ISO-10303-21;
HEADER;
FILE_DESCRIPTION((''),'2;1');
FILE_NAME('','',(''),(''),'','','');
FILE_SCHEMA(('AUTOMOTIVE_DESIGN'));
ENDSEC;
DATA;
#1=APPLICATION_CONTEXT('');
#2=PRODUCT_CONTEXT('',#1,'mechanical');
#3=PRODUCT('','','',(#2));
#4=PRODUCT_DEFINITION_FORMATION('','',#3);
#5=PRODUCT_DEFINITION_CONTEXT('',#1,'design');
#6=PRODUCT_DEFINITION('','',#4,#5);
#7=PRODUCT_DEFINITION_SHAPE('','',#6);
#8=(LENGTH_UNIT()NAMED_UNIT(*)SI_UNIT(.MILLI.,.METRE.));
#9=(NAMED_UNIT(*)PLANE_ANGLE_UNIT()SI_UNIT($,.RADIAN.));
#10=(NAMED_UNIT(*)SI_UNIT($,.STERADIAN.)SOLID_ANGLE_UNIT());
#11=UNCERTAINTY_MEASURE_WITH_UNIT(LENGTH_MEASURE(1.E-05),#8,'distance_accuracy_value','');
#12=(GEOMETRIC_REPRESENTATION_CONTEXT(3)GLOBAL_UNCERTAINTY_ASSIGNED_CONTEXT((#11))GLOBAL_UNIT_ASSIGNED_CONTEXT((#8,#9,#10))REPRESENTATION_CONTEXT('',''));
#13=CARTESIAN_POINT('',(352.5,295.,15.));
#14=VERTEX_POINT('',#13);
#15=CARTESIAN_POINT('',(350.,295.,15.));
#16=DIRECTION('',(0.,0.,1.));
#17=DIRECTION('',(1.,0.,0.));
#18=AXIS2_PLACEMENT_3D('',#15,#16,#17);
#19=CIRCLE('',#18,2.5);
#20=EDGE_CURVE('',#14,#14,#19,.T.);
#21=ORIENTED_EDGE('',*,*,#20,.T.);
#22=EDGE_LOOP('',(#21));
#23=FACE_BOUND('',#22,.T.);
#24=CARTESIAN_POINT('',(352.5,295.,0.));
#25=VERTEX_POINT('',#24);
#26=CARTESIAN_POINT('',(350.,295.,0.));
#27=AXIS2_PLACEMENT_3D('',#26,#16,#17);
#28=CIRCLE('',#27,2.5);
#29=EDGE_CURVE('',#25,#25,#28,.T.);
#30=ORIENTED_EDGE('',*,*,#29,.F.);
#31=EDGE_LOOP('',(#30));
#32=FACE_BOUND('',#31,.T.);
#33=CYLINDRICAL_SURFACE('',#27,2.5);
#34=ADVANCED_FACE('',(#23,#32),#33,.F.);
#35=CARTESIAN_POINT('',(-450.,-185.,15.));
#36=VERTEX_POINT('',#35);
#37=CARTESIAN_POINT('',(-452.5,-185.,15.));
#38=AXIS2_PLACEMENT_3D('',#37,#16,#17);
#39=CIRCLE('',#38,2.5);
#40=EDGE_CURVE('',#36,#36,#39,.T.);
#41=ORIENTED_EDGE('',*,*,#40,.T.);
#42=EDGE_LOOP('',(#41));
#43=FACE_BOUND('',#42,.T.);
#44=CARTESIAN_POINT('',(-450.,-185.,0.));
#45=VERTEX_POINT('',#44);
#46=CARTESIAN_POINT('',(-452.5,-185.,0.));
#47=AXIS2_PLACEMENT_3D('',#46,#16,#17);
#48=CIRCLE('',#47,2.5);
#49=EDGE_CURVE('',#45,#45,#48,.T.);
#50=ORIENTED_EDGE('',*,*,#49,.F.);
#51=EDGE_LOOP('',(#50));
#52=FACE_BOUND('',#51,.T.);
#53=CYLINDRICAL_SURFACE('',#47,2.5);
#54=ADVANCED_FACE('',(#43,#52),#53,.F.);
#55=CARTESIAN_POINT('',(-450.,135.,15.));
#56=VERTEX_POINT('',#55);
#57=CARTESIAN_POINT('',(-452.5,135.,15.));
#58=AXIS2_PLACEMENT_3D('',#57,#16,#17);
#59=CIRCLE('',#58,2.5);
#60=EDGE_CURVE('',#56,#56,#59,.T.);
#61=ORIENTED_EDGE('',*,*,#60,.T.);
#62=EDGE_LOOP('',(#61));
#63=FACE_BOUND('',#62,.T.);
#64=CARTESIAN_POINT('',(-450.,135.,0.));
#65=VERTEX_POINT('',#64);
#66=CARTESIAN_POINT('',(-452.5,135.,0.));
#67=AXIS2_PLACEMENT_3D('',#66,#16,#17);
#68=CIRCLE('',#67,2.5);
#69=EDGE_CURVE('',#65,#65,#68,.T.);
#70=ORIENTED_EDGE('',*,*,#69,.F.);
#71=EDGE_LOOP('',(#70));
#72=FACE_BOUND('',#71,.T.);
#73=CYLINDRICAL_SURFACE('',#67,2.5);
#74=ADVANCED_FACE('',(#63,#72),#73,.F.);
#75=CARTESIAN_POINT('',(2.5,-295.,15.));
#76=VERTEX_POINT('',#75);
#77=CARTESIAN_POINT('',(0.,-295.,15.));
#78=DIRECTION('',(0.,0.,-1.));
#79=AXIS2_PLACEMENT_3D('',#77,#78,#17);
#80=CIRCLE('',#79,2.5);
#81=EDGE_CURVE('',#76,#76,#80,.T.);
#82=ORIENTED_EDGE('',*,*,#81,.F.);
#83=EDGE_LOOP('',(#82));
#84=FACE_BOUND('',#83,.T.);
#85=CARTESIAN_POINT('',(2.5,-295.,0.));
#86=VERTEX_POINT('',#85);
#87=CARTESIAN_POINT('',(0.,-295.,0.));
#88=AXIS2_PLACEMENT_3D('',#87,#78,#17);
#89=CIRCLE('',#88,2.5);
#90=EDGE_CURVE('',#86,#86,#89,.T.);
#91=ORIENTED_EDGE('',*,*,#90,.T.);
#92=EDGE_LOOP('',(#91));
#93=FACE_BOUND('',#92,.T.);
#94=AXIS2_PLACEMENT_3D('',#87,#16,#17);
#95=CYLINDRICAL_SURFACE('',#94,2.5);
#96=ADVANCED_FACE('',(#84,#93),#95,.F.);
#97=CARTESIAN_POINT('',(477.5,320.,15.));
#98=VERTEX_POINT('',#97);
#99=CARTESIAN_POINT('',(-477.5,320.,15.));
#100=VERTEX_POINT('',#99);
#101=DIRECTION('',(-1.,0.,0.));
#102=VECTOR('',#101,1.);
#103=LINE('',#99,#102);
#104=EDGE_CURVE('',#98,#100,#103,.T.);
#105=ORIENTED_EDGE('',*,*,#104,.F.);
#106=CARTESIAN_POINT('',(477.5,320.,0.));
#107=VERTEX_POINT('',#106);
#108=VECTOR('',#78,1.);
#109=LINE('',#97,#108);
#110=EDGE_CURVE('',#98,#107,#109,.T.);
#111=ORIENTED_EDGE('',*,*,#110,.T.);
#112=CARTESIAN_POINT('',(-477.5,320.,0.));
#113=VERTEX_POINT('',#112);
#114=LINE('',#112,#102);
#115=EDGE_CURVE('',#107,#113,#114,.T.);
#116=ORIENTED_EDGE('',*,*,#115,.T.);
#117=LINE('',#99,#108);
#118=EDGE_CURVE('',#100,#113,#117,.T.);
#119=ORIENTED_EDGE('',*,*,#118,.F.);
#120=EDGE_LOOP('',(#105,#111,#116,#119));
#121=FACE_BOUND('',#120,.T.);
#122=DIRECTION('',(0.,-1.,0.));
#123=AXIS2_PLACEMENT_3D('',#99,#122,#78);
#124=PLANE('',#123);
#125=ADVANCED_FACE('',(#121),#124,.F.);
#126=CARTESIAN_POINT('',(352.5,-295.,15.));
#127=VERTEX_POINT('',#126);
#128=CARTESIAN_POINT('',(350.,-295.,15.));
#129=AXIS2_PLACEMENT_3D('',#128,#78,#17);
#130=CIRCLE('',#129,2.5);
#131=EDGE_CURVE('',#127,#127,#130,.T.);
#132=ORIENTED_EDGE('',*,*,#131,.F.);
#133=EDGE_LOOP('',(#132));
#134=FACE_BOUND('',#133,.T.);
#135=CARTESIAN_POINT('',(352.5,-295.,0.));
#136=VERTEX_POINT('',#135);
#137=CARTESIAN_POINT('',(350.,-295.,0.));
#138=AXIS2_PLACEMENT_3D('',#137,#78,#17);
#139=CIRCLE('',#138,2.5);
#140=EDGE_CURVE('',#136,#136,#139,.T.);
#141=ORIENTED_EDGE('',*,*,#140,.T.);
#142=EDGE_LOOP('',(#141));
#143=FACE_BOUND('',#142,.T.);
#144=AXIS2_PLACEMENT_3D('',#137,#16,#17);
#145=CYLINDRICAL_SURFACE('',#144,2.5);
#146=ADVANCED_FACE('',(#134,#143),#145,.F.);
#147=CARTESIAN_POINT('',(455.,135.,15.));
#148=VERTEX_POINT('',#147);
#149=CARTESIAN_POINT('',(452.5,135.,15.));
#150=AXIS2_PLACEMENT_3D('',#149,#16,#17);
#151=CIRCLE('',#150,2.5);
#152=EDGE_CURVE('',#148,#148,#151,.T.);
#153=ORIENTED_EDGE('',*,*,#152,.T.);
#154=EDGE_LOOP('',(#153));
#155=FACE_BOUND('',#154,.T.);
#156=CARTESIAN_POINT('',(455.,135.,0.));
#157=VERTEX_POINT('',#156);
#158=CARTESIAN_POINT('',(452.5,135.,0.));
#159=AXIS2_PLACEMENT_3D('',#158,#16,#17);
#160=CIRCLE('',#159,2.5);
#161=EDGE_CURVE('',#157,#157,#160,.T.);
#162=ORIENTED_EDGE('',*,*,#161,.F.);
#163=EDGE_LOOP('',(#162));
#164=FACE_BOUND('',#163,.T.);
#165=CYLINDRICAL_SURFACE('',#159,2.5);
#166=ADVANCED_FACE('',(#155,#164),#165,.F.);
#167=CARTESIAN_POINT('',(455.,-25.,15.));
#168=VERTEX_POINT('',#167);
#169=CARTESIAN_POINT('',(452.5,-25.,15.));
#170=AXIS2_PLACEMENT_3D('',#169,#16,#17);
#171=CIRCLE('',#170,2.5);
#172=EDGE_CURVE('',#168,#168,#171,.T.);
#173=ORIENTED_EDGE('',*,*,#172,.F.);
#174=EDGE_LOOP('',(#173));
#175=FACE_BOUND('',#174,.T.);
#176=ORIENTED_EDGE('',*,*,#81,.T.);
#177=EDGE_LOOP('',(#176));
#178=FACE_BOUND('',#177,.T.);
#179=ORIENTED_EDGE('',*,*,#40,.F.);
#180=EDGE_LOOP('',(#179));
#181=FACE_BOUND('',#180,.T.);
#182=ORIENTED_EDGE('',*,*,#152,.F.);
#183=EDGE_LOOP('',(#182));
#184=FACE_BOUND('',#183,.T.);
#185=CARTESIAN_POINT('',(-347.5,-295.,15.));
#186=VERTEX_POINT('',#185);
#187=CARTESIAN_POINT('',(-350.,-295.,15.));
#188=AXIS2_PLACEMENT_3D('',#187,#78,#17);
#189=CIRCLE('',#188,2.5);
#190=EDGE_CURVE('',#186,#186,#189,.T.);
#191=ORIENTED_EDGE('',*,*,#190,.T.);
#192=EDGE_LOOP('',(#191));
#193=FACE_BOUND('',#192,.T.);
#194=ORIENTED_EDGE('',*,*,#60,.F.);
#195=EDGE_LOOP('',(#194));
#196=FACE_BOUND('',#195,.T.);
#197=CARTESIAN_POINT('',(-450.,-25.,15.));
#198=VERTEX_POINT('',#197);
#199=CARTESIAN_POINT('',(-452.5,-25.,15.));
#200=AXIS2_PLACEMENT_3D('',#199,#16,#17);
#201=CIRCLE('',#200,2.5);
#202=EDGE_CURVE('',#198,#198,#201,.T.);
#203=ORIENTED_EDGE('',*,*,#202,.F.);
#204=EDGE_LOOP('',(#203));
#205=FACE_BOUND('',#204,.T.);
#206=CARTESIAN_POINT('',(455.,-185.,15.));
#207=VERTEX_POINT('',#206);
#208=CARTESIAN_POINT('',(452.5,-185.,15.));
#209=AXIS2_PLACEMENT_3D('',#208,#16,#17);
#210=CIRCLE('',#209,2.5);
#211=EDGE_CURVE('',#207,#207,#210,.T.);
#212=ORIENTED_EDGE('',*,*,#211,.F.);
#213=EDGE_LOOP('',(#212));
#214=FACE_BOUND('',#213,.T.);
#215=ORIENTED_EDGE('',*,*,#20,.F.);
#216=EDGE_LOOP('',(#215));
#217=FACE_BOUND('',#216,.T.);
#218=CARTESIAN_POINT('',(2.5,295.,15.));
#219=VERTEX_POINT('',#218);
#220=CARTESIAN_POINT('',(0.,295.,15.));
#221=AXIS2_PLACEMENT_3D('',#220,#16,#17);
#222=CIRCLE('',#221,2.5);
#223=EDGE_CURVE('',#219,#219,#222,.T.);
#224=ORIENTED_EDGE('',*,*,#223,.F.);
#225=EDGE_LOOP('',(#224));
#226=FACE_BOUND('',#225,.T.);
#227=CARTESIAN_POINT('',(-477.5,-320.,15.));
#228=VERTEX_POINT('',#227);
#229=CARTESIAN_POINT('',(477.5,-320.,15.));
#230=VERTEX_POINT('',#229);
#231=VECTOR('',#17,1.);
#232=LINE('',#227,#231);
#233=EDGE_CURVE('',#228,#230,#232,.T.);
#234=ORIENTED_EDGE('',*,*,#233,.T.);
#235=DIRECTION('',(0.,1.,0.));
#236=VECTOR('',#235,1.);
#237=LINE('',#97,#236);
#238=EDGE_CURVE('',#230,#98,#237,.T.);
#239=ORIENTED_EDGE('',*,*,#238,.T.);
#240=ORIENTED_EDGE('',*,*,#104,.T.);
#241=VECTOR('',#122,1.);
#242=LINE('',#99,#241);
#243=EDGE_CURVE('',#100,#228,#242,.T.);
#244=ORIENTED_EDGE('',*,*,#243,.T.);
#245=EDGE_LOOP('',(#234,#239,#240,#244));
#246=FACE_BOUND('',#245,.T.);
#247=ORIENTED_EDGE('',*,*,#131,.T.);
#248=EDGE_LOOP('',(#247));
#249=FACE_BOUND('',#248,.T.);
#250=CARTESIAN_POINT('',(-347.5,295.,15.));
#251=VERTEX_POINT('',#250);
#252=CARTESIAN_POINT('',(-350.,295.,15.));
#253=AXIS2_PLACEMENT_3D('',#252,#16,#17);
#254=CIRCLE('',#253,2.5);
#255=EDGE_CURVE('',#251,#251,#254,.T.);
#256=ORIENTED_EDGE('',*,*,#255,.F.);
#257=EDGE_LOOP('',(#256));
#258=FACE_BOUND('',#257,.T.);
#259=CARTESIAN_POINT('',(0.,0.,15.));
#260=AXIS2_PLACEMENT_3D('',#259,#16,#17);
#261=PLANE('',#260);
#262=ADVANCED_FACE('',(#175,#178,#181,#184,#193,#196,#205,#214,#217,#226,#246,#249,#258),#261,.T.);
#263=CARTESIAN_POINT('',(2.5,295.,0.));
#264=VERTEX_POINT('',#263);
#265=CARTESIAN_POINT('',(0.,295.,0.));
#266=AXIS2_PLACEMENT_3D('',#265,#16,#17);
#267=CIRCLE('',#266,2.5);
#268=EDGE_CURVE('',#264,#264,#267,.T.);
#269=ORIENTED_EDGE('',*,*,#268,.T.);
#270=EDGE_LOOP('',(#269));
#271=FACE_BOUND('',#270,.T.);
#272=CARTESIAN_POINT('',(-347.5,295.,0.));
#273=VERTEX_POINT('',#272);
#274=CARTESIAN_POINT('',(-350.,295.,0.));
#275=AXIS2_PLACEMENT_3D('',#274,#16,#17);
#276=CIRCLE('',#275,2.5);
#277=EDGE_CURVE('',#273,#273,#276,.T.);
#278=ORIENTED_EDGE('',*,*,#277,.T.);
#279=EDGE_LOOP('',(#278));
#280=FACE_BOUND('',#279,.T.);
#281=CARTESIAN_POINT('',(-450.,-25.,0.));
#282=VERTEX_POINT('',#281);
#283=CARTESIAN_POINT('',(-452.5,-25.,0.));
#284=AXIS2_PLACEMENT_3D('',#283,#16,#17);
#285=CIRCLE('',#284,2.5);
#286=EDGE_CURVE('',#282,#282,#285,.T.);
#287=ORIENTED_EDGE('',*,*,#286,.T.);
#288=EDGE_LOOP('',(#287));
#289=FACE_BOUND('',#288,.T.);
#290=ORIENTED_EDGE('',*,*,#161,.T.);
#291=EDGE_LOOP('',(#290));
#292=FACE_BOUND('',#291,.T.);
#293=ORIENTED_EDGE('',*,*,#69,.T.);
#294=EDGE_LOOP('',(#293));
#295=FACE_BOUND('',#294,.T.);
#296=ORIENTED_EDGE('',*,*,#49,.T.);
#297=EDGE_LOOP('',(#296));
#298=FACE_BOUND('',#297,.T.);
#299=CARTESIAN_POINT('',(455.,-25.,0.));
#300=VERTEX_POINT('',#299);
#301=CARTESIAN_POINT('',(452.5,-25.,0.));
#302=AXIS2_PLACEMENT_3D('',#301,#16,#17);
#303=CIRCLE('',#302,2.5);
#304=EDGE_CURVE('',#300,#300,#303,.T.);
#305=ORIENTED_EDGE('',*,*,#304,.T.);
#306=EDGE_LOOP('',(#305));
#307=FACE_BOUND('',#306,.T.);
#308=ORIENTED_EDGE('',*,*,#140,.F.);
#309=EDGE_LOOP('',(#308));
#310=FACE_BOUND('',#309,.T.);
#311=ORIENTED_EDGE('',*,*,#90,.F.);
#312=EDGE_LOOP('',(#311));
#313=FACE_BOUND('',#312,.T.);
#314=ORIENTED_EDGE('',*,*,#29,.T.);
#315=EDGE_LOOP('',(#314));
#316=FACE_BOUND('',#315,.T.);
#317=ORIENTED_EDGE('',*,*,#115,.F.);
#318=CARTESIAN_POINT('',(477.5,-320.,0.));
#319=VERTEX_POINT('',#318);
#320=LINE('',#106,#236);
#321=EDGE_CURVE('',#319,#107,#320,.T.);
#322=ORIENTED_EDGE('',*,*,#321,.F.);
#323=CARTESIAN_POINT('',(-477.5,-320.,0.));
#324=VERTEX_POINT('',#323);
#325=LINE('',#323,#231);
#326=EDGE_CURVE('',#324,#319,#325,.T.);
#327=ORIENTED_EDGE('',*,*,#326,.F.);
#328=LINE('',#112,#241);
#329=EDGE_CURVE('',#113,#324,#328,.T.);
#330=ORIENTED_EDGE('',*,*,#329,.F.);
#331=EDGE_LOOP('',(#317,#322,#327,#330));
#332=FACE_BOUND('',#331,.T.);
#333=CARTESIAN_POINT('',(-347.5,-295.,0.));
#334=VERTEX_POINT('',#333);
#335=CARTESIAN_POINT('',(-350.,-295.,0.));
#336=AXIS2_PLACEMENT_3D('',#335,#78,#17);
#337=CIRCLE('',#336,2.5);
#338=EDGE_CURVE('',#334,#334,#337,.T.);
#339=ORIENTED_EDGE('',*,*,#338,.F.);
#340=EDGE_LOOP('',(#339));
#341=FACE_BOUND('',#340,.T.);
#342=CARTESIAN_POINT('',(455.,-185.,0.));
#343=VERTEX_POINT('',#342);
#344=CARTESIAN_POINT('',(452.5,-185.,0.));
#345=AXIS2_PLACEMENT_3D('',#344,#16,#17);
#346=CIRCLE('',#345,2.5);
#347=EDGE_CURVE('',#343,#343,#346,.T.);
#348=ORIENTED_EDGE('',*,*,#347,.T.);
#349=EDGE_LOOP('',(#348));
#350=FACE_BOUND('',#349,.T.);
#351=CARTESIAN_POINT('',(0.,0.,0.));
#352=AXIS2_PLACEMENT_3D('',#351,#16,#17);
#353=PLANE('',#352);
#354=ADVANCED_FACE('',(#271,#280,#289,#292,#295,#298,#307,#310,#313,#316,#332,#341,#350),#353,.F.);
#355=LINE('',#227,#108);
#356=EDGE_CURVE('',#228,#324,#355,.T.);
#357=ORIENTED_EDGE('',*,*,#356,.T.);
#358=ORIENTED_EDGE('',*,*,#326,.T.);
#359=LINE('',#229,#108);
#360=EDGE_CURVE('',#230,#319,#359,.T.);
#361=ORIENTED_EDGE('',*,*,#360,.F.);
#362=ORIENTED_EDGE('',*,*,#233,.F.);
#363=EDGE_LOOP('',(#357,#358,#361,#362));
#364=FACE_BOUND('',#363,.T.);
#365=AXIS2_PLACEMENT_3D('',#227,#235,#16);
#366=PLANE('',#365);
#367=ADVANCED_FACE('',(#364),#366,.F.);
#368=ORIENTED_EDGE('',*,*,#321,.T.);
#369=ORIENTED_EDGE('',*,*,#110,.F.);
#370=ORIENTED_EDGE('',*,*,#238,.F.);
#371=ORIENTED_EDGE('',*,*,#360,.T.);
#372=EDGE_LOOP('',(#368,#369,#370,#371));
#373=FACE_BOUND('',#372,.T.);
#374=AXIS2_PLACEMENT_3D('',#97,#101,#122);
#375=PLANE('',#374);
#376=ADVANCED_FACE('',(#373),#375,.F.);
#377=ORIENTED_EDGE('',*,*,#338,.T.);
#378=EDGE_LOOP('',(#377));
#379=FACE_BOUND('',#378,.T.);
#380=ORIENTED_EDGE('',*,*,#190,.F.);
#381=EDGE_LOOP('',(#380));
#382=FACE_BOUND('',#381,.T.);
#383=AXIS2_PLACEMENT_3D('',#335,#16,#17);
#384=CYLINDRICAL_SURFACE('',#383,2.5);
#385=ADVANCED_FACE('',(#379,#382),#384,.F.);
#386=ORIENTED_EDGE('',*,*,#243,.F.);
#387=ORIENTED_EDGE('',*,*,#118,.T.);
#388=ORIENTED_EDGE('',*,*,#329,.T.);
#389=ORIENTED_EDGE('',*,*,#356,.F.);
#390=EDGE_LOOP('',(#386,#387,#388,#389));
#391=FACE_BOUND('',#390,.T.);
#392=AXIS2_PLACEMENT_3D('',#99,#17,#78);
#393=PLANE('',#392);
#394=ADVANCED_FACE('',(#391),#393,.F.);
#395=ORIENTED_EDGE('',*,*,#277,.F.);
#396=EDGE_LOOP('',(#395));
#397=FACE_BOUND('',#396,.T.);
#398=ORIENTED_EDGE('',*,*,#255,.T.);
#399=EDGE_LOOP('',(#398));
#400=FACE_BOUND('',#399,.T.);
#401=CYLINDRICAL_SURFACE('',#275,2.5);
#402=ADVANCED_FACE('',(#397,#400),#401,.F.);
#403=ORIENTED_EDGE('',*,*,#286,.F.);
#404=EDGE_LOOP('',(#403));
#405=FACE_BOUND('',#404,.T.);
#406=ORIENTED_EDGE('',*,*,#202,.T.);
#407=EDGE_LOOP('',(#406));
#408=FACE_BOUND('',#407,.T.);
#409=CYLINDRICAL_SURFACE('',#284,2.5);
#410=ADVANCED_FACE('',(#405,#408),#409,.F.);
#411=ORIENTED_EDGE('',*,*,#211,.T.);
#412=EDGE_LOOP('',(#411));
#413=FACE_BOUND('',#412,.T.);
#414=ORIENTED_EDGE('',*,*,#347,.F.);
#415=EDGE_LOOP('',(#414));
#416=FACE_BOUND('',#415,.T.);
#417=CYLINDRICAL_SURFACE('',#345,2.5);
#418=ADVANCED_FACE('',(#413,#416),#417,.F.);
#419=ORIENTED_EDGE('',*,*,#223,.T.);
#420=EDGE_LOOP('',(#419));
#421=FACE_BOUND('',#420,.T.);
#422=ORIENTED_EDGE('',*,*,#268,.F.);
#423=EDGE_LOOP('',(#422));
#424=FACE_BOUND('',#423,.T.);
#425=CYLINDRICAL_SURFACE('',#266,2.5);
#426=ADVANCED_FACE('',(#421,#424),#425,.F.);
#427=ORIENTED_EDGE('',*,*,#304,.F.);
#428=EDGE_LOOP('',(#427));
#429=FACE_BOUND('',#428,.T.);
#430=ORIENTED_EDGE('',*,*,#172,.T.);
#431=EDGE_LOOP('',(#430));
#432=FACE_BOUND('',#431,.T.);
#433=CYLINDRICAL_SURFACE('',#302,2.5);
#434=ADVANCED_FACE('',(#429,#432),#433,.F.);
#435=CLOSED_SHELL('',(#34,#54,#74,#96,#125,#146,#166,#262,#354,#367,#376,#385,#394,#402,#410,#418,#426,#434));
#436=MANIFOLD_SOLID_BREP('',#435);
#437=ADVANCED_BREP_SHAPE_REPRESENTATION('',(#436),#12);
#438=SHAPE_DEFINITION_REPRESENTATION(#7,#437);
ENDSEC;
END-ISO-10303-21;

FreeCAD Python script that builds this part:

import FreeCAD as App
import Part
import Sketcher
Q = App.Units.Quantity

doc = App.newDocument("Part")
body = doc.addObject("PartDesign::Body", "Body")

# Sketch on XY plane
sketch1 = doc.addObject("Sketcher::SketchObject", "Sketch")
body.addObject(sketch1)
sketch1.AttachmentSupport = (doc.XY_Plane, [""])
sketch1.MapMode = "FlatFace"
sketch1.addGeometry(Part.LineSegment(App.Vector(-478, 320, 0), App.Vector(-478, -320, 0)), False)
sketch1.addGeometry(Part.LineSegment(App.Vector(-478, -320, 0), App.Vector(478, -320, 0)), False)
sketch1.addGeometry(Part.LineSegment(App.Vector(478, -320, 0), App.Vector(478, 320, 0)), False)
sketch1.addGeometry(Part.LineSegment(App.Vector(478, 320, 0), App.Vector(-478, 320, 0)), False)
sketch1.addConstraint(Sketcher.Constraint("Coincident", 0, 2, 1, 1))
sketch1.addConstraint(Sketcher.Constraint("Coincident", 1, 2, 2, 1))
sketch1.addConstraint(Sketcher.Constraint("Coincident", 2, 2, 3, 1))
sketch1.addConstraint(Sketcher.Constraint("Coincident", 3, 2, 0, 1))
sketch1.addConstraint(Sketcher.Constraint("Vertical", 0))
sketch1.addConstraint(Sketcher.Constraint("Horizontal", 1))
sketch1.addConstraint(Sketcher.Constraint("Vertical", 2))
sketch1.addConstraint(Sketcher.Constraint("Horizontal", 3))
sketch1.addConstraint(Sketcher.Constraint("Symmetric", 0, 2, 2, 2, -1, 1))
sketch1.addConstraint(Sketcher.Constraint("DistanceX", 1, 1, 1, 2, Q("955 mm")))
sketch1.addConstraint(Sketcher.Constraint("DistanceY", 0, 2, 0, 1, Q("640 mm")))
pad1 = doc.addObject("PartDesign::Pad", "Pad")
body.addObject(pad1)
pad1.Profile = sketch1
pad1.Length = 15

# Sketch on XY plane
sketch2 = doc.addObject("Sketcher::SketchObject", "Sketch001")
body.addObject(sketch2)
sketch2.AttachmentSupport = (doc.XY_Plane, [""])
sketch2.MapMode = "FlatFace"
sketch2.AttachmentOffset = App.Placement(App.Vector(0, 0, 15), App.Rotation())
sketch2.addGeometry(Part.Circle(App.Vector(-452.5, -185, 0), App.Vector(0, 0, 1), 2.5), False)
sketch2.addGeometry(Part.Circle(App.Vector(452.5, -185, 0), App.Vector(0, 0, 1), 2.5), False)
sketch2.addGeometry(Part.Circle(App.Vector(452.5, -25, 0), App.Vector(0, 0, 1), 2.5), False)
sketch2.addGeometry(Part.Circle(App.Vector(-452.5, -25, 0), App.Vector(0, 0, 1), 2.5), False)
sketch2.addGeometry(Part.Circle(App.Vector(-452.5, 135, 0), App.Vector(0, 0, 1), 2.5), False)
sketch2.addGeometry(Part.Circle(App.Vector(452.5, 135, 0), App.Vector(0, 0, 1), 2.5), False)
sketch2.addConstraint(Sketcher.Constraint("Equal", 0, 1))
sketch2.addConstraint(Sketcher.Constraint("Equal", 1, 2))
sketch2.addConstraint(Sketcher.Constraint("Equal", 2, 3))
sketch2.addConstraint(Sketcher.Constraint("Equal", 3, 4))
sketch2.addConstraint(Sketcher.Constraint("Equal", 4, 5))
sketch2.addConstraint(Sketcher.Constraint("Symmetric", 0, 3, 1, 3, -2))
sketch2.addConstraint(Sketcher.Constraint("Symmetric", 2, 3, 3, 3, -2))
sketch2.addConstraint(Sketcher.Constraint("Symmetric", 4, 3, 5, 3, -2))
sketch2.addConstraint(Sketcher.Constraint("Vertical", 1, 3, 2, 3))
sketch2.addConstraint(Sketcher.Constraint("Vertical", 3, 3, 4, 3))
sketch2.addConstraint(Sketcher.Constraint("Diameter", 0, Q("5 mm")))
sketch2.addConstraint(Sketcher.Constraint("DistanceY", 0, 3, -1, 1, Q("185 mm")))
sketch2.addConstraint(Sketcher.Constraint("DistanceY", 2, 3, -1, 1, Q("25 mm")))
sketch2.addConstraint(Sketcher.Constraint("DistanceY", -1, 1, 4, 3, Q("135 mm")))
sketch2.addConstraint(Sketcher.Constraint("DistanceX", 0, 3, 1, 3, Q("905 mm")))
pocket1 = doc.addObject("PartDesign::Pocket", "Pocket")
body.addObject(pocket1)
pocket1.Profile = sketch2
pocket1.Type = "ThroughAll"
pocket1.Midplane = True

# Sketch on XY plane
sketch3 = doc.addObject("Sketcher::SketchObject", "Sketch002")
body.addObject(sketch3)
sketch3.AttachmentSupport = (doc.XY_Plane, [""])
sketch3.MapMode = "FlatFace"
sketch3.AttachmentOffset = App.Placement(App.Vector(0, 0, 15), App.Rotation())
sketch3.addGeometry(Part.Circle(App.Vector(0, 295, 0), App.Vector(0, 0, 1), 2.5), False)
sketch3.addGeometry(Part.Circle(App.Vector(-350, 295, 0), App.Vector(0, 0, 1), 2.5), False)
sketch3.addGeometry(Part.Circle(App.Vector(350, 295, 0), App.Vector(0, 0, 1), 2.5), False)
sketch3.addConstraint(Sketcher.Constraint("Equal", 0, 1))
sketch3.addConstraint(Sketcher.Constraint("Equal", 1, 2))
sketch3.addConstraint(Sketcher.Constraint("Symmetric", 1, 3, 2, 3, -2))
sketch3.addConstraint(Sketcher.Constraint("PointOnObject", 0, 3, -2))
sketch3.addConstraint(Sketcher.Constraint("Horizontal", 0, 3, 1, 3))
sketch3.addConstraint(Sketcher.Constraint("Diameter", 0, Q("5 mm")))
sketch3.addConstraint(Sketcher.Constraint("DistanceY", -1, 1, 0, 3, Q("295 mm")))
sketch3.addConstraint(Sketcher.Constraint("DistanceX", 1, 3, -1, 1, Q("350 mm")))
pocket2 = doc.addObject("PartDesign::Pocket", "Pocket001")
body.addObject(pocket2)
pocket2.Profile = sketch3
pocket2.Type = "ThroughAll"
doc.recompute()

mirrored = doc.addObject("PartDesign::Mirrored", "Mirrored")
body.addObject(mirrored)
mirrored.Originals = [pocket2]
mirrored.MirrorPlane = (doc.XZ_Plane, [""])
body.Tip = mirrored

doc.recompute()
